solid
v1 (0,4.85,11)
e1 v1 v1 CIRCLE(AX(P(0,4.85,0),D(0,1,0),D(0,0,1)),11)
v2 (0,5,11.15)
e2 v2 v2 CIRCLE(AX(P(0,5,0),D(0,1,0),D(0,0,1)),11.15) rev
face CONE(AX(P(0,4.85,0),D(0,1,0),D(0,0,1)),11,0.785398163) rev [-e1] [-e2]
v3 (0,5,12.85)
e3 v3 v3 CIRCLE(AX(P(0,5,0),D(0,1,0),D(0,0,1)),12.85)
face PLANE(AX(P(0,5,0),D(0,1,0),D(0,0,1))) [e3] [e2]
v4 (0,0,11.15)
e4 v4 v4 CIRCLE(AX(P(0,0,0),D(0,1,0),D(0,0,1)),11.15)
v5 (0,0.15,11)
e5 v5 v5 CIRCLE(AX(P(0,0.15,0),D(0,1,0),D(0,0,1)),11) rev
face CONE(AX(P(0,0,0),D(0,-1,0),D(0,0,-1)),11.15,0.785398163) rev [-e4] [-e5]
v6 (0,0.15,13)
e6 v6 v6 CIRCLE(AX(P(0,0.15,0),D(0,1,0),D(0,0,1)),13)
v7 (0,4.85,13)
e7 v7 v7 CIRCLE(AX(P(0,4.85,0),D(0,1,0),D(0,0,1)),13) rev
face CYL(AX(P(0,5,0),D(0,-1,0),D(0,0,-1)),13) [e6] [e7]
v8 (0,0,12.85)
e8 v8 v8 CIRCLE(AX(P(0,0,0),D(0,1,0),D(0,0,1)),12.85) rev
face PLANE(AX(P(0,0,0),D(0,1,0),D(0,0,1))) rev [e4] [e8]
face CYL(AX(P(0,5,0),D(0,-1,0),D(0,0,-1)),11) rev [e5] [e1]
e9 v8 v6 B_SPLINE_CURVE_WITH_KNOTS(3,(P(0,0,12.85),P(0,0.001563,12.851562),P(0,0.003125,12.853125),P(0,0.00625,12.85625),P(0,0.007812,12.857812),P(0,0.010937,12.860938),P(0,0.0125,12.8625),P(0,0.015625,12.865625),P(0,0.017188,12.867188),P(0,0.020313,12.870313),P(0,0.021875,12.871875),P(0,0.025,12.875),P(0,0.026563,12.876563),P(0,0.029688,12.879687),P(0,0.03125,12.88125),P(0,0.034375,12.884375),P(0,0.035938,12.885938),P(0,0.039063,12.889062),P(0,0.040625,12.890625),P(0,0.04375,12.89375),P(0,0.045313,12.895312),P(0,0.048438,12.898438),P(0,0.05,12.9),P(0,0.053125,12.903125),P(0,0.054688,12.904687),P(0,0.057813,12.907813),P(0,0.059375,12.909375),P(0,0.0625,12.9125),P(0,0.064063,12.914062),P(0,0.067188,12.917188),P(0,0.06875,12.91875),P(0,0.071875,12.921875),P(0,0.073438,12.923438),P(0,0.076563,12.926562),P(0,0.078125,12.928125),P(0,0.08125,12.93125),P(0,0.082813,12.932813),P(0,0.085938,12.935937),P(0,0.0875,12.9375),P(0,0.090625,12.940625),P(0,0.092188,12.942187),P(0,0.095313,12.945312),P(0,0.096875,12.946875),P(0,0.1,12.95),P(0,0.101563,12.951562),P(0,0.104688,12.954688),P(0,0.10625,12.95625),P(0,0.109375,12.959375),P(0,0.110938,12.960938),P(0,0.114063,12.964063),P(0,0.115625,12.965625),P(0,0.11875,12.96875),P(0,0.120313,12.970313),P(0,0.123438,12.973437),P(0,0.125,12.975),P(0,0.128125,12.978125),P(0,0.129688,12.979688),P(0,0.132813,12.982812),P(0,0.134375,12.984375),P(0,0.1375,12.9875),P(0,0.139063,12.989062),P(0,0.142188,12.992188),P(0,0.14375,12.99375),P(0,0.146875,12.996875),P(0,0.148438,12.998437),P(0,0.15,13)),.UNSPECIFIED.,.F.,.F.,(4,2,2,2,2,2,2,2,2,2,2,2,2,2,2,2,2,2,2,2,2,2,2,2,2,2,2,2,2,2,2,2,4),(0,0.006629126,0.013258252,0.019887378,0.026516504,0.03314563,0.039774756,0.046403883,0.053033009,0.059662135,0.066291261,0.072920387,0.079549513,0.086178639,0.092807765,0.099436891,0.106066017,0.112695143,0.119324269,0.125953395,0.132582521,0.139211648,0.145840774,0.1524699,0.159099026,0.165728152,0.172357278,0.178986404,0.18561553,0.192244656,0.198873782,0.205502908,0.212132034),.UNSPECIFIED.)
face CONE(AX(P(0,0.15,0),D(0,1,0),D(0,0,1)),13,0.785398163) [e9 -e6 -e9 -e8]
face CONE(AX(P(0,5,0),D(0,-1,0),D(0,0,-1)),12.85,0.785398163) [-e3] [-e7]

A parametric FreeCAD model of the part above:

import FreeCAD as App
import Part
import Sketcher

V = App.Vector
Q = App.Units.Quantity


def edges_at(feature, points):
    """Names of the edges that pass closest to the given points."""
    edges = feature.Shape.Edges
    near = lambda p: min(range(len(edges)), key=lambda i: edges[i].distToShape(Part.Vertex(*p))[0])
    return sorted({f"Edge{near(p) + 1}" for p in points})

doc = App.newDocument("Part")
body = doc.addObject("PartDesign::Body", "Body")

# Sketch on XZ plane
sketch1 = body.newObject("Sketcher::SketchObject", "Sketch")
sketch1.AttachmentSupport = (doc.getObject("XZ_Plane"), [""])
sketch1.MapMode = "FlatFace"
sketch1.addGeometry(Part.Circle(V(0, 0, 0), V(0, 0, 1), 13), False)
sketch1.addGeometry(Part.Circle(V(0, 0, 0), V(0, 0, 1), 11), False)
sketch1.addConstraint(Sketcher.Constraint("Coincident", 0, 3, -1, 1))
sketch1.addConstraint(Sketcher.Constraint("Coincident", 1, 3, -1, 1))
sketch1.addConstraint(Sketcher.Constraint("Diameter", 0, Q("26 mm")))
sketch1.addConstraint(Sketcher.Constraint("Diameter", 1, Q("22 mm")))
pad1 = body.newObject("PartDesign::Pad", "Pad")
pad1.Profile = sketch1
pad1.Length = 5
pad1.Reversed = True
doc.recompute()

chamfer = body.newObject("PartDesign::Chamfer", "Chamfer")
chamfer.Base = (pad1, edges_at(pad1, [
    (0, 0, -13),
    (0, 5, -13),
    (0, 0, -11),
    (0, 5, -11),
]))
chamfer.Size = 0.15

doc.recompute()
